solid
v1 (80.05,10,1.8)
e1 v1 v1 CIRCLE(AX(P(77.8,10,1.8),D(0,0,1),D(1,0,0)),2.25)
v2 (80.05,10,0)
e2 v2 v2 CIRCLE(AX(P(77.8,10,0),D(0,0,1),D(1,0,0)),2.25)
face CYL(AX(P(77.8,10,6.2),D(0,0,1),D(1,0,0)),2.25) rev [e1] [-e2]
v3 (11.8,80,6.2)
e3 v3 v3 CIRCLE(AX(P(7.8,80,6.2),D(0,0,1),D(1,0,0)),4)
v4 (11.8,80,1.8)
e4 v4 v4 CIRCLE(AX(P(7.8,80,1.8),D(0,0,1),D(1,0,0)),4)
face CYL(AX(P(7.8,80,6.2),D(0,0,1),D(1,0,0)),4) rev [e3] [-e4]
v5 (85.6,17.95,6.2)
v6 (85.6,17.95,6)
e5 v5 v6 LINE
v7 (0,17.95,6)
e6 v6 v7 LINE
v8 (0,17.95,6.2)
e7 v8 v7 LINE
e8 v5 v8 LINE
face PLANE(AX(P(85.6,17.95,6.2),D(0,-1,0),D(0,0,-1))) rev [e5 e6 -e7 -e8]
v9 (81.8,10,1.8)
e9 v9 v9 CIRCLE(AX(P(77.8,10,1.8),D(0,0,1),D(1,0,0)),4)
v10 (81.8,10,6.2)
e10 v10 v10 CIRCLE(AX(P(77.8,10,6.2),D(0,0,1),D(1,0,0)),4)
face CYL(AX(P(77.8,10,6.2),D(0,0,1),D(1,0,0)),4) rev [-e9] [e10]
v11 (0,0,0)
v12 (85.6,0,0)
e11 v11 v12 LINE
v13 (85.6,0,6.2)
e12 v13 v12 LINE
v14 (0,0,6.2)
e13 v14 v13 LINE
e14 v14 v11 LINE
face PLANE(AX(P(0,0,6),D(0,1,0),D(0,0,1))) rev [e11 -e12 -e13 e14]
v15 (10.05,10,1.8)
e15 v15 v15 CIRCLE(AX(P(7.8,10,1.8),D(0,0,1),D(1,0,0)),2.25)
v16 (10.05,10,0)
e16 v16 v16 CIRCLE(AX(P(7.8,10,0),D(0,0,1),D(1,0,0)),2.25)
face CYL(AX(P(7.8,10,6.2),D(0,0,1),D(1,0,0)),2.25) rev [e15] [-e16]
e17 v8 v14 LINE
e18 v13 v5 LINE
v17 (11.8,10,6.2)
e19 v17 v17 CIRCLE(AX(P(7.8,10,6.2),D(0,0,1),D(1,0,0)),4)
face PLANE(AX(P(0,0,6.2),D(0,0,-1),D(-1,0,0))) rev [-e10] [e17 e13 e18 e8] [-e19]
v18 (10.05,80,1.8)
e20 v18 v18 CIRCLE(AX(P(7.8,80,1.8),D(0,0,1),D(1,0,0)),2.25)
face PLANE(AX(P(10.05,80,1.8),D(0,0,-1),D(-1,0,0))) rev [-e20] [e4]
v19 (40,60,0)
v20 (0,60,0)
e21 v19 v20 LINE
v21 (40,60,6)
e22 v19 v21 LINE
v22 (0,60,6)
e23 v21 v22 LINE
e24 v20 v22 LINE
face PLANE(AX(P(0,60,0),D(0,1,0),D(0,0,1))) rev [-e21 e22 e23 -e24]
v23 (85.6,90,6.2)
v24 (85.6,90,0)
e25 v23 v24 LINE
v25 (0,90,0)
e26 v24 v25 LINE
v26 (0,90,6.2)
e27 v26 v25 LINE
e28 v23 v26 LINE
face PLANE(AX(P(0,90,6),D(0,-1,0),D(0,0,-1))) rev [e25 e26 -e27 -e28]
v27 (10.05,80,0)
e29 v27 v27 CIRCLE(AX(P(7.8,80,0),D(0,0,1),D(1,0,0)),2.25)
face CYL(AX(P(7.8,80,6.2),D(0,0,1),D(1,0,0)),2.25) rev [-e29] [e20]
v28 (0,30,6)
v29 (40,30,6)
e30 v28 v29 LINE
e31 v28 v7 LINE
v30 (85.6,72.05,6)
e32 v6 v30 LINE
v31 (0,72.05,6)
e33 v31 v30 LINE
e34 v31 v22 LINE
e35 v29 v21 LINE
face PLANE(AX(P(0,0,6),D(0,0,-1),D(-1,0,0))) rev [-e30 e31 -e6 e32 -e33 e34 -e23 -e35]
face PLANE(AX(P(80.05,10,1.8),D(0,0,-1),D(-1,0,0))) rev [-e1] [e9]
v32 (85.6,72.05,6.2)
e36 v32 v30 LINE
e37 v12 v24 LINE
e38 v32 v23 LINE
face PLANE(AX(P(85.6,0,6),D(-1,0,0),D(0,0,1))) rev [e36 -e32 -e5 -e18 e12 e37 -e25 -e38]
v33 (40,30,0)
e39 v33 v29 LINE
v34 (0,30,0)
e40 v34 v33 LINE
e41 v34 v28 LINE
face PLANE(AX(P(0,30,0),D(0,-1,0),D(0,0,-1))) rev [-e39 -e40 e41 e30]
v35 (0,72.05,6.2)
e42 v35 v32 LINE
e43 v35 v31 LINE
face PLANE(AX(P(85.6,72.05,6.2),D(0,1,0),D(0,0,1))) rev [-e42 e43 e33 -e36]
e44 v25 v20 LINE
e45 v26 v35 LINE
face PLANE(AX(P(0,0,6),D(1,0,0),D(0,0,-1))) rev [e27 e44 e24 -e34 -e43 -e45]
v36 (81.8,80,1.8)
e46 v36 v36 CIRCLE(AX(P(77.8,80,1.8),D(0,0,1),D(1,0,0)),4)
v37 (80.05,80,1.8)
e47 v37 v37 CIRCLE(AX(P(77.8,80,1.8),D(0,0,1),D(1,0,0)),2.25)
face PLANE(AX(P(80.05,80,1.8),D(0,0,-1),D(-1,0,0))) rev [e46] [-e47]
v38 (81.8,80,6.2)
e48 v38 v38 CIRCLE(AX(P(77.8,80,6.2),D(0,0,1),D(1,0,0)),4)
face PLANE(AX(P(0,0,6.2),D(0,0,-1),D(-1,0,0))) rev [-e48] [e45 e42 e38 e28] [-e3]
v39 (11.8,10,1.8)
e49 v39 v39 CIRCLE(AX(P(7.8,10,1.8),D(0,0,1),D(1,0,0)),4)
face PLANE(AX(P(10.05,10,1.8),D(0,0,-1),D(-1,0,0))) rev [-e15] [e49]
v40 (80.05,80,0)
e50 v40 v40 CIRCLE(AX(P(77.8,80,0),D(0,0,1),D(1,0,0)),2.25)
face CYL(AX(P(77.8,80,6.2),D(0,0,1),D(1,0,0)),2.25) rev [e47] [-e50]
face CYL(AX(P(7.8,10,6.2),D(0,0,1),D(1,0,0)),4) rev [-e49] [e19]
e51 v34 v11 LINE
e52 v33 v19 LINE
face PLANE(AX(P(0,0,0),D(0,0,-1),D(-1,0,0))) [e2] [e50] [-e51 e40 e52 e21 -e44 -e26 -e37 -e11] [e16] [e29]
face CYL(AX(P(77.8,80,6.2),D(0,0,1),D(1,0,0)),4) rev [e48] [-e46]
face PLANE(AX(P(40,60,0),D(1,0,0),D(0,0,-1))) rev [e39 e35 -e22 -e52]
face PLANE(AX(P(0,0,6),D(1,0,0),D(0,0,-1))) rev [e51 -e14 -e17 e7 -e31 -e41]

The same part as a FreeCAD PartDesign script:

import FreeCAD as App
import Part
import Sketcher

doc = App.newDocument("Part")
params = doc.addObject("Spreadsheet::Sheet", "Params")
for row, (alias, value) in enumerate([
    ("sketch1_height", "90 mm"),
    ("sketch1_width", "85.6 mm"),
    ("pad1_length", "6 mm"),
    ("sketch2_width", "85.6 mm"),
    ("sketch2_height", "17.95 mm"),
    ("pad2_length", "0.2 mm"),
    ("sketch3_width", "40 mm"),
    ("sketch3_height", "30 mm"),
    ("sketch4_diameter", "4.5 mm"),
    ("hole_diameter", "4.5 mm"),
    ("hole_cbore_diameter", "8 mm"),
    ("hole_cbore_depth", "4.4 mm"),
], start=1):
    params.set(f"A{row}", alias)
    params.set(f"B{row}", "=" + value)
    params.setAlias(f"B{row}", alias)

body = doc.addObject("PartDesign::Body", "Body")

sketch1 = body.newObject("Sketcher::SketchObject", "Sketch")
sketch1.AttachmentSupport = (doc.getObject("XY_Plane"), [""])
sketch1.MapMode = "FlatFace"
sketch1.addGeometry(Part.LineSegment(App.Vector(0, 90, 0), App.Vector(0, 0, 0)), False)
sketch1.addGeometry(Part.LineSegment(App.Vector(0, 0, 0), App.Vector(86, 0, 0)), False)
sketch1.addGeometry(Part.LineSegment(App.Vector(86, 0, 0), App.Vector(86, 90, 0)), False)
sketch1.addGeometry(Part.LineSegment(App.Vector(86, 90, 0), App.Vector(0, 90, 0)), False)
sketch1.addConstraint(Sketcher.Constraint("Coincident", 0, 2, 1, 1))
sketch1.addConstraint(Sketcher.Constraint("Coincident", 1, 2, 2, 1))
sketch1.addConstraint(Sketcher.Constraint("Coincident", 2, 2, 3, 1))
sketch1.addConstraint(Sketcher.Constraint("Coincident", 3, 2, 0, 1))
sketch1.addConstraint(Sketcher.Constraint("Vertical", 0))
sketch1.addConstraint(Sketcher.Constraint("Horizontal", 1))
sketch1.addConstraint(Sketcher.Constraint("Vertical", 2))
sketch1.addConstraint(Sketcher.Constraint("Horizontal", 3))
sketch1.addConstraint(Sketcher.Constraint("Coincident", 0, 2, -1, 1))
sketch1.addConstraint(Sketcher.Constraint("DistanceY", 0, 2, 0, 1, 90.0))
sketch1.addConstraint(Sketcher.Constraint("DistanceX", 1, 1, 1, 2, 85.6))
sketch1.setExpression("Constraints[9]", "Params.sketch1_height")
sketch1.setExpression("Constraints[10]", "Params.sketch1_width")
pad1 = body.newObject("PartDesign::Pad", "Pad")
pad1.Profile = sketch1
pad1.setExpression("Length", "Params.pad1_length")

sketch2 = body.newObject("Sketcher::SketchObject", "Sketch001")
sketch2.AttachmentSupport = (doc.getObject("XY_Plane"), [""])
sketch2.MapMode = "FlatFace"
sketch2.AttachmentOffset = App.Placement(App.Vector(0, 0, 6), App.Rotation())
sketch2.addGeometry(Part.LineSegment(App.Vector(0, 90, 0), App.Vector(0, 72, 0)), False)
sketch2.addGeometry(Part.LineSegment(App.Vector(0, 72, 0), App.Vector(86, 72, 0)), False)
sketch2.addGeometry(Part.LineSegment(App.Vector(86, 72, 0), App.Vector(86, 90, 0)), False)
sketch2.addGeometry(Part.LineSegment(App.Vector(86, 90, 0), App.Vector(0, 90, 0)), False)
sketch2.addGeometry(Part.LineSegment(App.Vector(0, 18, 0), App.Vector(0, 0, 0)), False)
sketch2.addGeometry(Part.LineSegment(App.Vector(0, 0, 0), App.Vector(86, 0, 0)), False)
sketch2.addGeometry(Part.LineSegment(App.Vector(86, 0, 0), App.Vector(86, 18, 0)), False)
sketch2.addGeometry(Part.LineSegment(App.Vector(86, 18, 0), App.Vector(0, 18, 0)), False)
sketch2.addConstraint(Sketcher.Constraint("Coincident", 0, 2, 1, 1))
sketch2.addConstraint(Sketcher.Constraint("Coincident", 1, 2, 2, 1))
sketch2.addConstraint(Sketcher.Constraint("Coincident", 2, 2, 3, 1))
sketch2.addConstraint(Sketcher.Constraint("Coincident", 3, 2, 0, 1))
sketch2.addConstraint(Sketcher.Constraint("Coincident", 4, 2, 5, 1))
sketch2.addConstraint(Sketcher.Constraint("Coincident", 5, 2, 6, 1))
sketch2.addConstraint(Sketcher.Constraint("Coincident", 6, 2, 7, 1))
sketch2.addConstraint(Sketcher.Constraint("Coincident", 7, 2, 4, 1))
sketch2.addConstraint(Sketcher.Constraint("Vertical", 0))
sketch2.addConstraint(Sketcher.Constraint("Horizontal", 1))
sketch2.addConstraint(Sketcher.Constraint("Vertical", 2))
sketch2.addConstraint(Sketcher.Constraint("Horizontal", 3))
sketch2.addConstraint(Sketcher.Constraint("Vertical", 4))
sketch2.addConstraint(Sketcher.Constraint("Horizontal", 5))
sketch2.addConstraint(Sketcher.Constraint("Vertical", 6))
sketch2.addConstraint(Sketcher.Constraint("Horizontal", 7))
sketch2.addConstraint(Sketcher.Constraint("Coincident", 4, 2, -1, 1))
sketch2.addConstraint(Sketcher.Constraint("PointOnObject", 0, 2, -2))
sketch2.addConstraint(Sketcher.Constraint("Vertical", 2, 2, 5, 2))
sketch2.addConstraint(Sketcher.Constraint("Equal", 2, 4))
sketch2.addConstraint(Sketcher.Constraint("DistanceX", 1, 1, 1, 2, 85.6))
sketch2.addConstraint(Sketcher.Constraint("DistanceY", -1, 1, 2, 2, 90.0))
sketch2.addConstraint(Sketcher.Constraint("DistanceY", 0, 2, 0, 1, 17.95))
sketch2.setExpression("Constraints[20]", "Params.sketch2_width")
sketch2.setExpression("Constraints[22]", "Params.sketch2_height")
pad2 = body.newObject("PartDesign::Pad", "Pad001")
pad2.Profile = sketch2
pad2.setExpression("Length", "Params.pad2_length")

sketch3 = body.newObject("Sketcher::SketchObject", "Sketch002")
sketch3.AttachmentSupport = (doc.getObject("XY_Plane"), [""])
sketch3.MapMode = "FlatFace"
sketch3.AttachmentOffset = App.Placement(App.Vector(0, 0, 6), App.Rotation())
sketch3.addGeometry(Part.LineSegment(App.Vector(0, 60, 0), App.Vector(0, 30, 0)), False)
sketch3.addGeometry(Part.LineSegment(App.Vector(0, 30, 0), App.Vector(40, 30, 0)), False)
sketch3.addGeometry(Part.LineSegment(App.Vector(40, 30, 0), App.Vector(40, 60, 0)), False)
sketch3.addGeometry(Part.LineSegment(App.Vector(40, 60, 0), App.Vector(0, 60, 0)), False)
sketch3.addConstraint(Sketcher.Constraint("Coincident", 0, 2, 1, 1))
sketch3.addConstraint(Sketcher.Constraint("Coincident", 1, 2, 2, 1))
sketch3.addConstraint(Sketcher.Constraint("Coincident", 2, 2, 3, 1))
sketch3.addConstraint(Sketcher.Constraint("Coincident", 3, 2, 0, 1))
sketch3.addConstraint(Sketcher.Constraint("Vertical", 0))
sketch3.addConstraint(Sketcher.Constraint("Horizontal", 1))
sketch3.addConstraint(Sketcher.Constraint("Vertical", 2))
sketch3.addConstraint(Sketcher.Constraint("Horizontal", 3))
sketch3.addConstraint(Sketcher.Constraint("PointOnObject", 0, 2, -2))
sketch3.addConstraint(Sketcher.Constraint("DistanceX", 1, 1, 1, 2, 40.0))
sketch3.addConstraint(Sketcher.Constraint("DistanceY", 0, 2, 0, 1, 30.0))
sketch3.addConstraint(Sketcher.Constraint("DistanceY", -1, 1, 0, 2, 30.0))
sketch3.setExpression("Constraints[9]", "Params.sketch3_width")
sketch3.setExpression("Constraints[10]", "Params.sketch3_height")
pocket1 = body.newObject("PartDesign::Pocket", "Pocket")
pocket1.Profile = sketch3
pocket1.Type = "ThroughAll"

sketch4 = body.newObject("Sketcher::SketchObject", "Sketch003")
sketch4.AttachmentSupport = (doc.getObject("XY_Plane"), [""])
sketch4.MapMode = "FlatFace"
sketch4.AttachmentOffset = App.Placement(App.Vector(0, 0, 6.2), App.Rotation())
sketch4.addGeometry(Part.Circle(App.Vector(77.8, 80, 0), App.Vector(0, 0, 1), 2.2), False)
sketch4.addGeometry(Part.Circle(App.Vector(7.8, 80, 0), App.Vector(0, 0, 1), 2.2), False)
sketch4.addGeometry(Part.Circle(App.Vector(7.8, 10, 0), App.Vector(0, 0, 1), 2.2), False)
sketch4.addGeometry(Part.Circle(App.Vector(77.8, 10, 0), App.Vector(0, 0, 1), 2.2), False)
sketch4.addConstraint(Sketcher.Constraint("Equal", 0, 1))
sketch4.addConstraint(Sketcher.Constraint("Equal", 1, 2))
sketch4.addConstraint(Sketcher.Constraint("Equal", 2, 3))
sketch4.addConstraint(Sketcher.Constraint("Horizontal", 0, 3, 1, 3))
sketch4.addConstraint(Sketcher.Constraint("Horizontal", 2, 3, 3, 3))
sketch4.addConstraint(Sketcher.Constraint("Vertical", 1, 3, 2, 3))
sketch4.addConstraint(Sketcher.Constraint("Vertical", 0, 3, 3, 3))
sketch4.addConstraint(Sketcher.Constraint("Diameter", 0, 4.5))
sketch4.addConstraint(Sketcher.Constraint("DistanceY", -1, 1, 0, 3, 80.0))
sketch4.addConstraint(Sketcher.Constraint("DistanceY", -1, 1, 2, 3, 10.0))
sketch4.addConstraint(Sketcher.Constraint("DistanceX", 1, 3, 0, 3, 70.0))
sketch4.addConstraint(Sketcher.Constraint("DistanceX", -1, 1, 0, 3, 77.8))
sketch4.setExpression("Constraints[7]", "Params.sketch4_diameter")
doc.recompute()
hole = body.newObject("PartDesign::Hole", "Hole")
hole.Profile = sketch4
hole.ThreadType = "None"
hole.setExpression("Diameter", "Params.hole_diameter")
hole.DepthType = "ThroughAll"
hole.HoleCutType = "Counterbore"
hole.setExpression("HoleCutDiameter", "Params.hole_cbore_diameter")
hole.setExpression("HoleCutDepth", "Params.hole_cbore_depth")

doc.recompute()
